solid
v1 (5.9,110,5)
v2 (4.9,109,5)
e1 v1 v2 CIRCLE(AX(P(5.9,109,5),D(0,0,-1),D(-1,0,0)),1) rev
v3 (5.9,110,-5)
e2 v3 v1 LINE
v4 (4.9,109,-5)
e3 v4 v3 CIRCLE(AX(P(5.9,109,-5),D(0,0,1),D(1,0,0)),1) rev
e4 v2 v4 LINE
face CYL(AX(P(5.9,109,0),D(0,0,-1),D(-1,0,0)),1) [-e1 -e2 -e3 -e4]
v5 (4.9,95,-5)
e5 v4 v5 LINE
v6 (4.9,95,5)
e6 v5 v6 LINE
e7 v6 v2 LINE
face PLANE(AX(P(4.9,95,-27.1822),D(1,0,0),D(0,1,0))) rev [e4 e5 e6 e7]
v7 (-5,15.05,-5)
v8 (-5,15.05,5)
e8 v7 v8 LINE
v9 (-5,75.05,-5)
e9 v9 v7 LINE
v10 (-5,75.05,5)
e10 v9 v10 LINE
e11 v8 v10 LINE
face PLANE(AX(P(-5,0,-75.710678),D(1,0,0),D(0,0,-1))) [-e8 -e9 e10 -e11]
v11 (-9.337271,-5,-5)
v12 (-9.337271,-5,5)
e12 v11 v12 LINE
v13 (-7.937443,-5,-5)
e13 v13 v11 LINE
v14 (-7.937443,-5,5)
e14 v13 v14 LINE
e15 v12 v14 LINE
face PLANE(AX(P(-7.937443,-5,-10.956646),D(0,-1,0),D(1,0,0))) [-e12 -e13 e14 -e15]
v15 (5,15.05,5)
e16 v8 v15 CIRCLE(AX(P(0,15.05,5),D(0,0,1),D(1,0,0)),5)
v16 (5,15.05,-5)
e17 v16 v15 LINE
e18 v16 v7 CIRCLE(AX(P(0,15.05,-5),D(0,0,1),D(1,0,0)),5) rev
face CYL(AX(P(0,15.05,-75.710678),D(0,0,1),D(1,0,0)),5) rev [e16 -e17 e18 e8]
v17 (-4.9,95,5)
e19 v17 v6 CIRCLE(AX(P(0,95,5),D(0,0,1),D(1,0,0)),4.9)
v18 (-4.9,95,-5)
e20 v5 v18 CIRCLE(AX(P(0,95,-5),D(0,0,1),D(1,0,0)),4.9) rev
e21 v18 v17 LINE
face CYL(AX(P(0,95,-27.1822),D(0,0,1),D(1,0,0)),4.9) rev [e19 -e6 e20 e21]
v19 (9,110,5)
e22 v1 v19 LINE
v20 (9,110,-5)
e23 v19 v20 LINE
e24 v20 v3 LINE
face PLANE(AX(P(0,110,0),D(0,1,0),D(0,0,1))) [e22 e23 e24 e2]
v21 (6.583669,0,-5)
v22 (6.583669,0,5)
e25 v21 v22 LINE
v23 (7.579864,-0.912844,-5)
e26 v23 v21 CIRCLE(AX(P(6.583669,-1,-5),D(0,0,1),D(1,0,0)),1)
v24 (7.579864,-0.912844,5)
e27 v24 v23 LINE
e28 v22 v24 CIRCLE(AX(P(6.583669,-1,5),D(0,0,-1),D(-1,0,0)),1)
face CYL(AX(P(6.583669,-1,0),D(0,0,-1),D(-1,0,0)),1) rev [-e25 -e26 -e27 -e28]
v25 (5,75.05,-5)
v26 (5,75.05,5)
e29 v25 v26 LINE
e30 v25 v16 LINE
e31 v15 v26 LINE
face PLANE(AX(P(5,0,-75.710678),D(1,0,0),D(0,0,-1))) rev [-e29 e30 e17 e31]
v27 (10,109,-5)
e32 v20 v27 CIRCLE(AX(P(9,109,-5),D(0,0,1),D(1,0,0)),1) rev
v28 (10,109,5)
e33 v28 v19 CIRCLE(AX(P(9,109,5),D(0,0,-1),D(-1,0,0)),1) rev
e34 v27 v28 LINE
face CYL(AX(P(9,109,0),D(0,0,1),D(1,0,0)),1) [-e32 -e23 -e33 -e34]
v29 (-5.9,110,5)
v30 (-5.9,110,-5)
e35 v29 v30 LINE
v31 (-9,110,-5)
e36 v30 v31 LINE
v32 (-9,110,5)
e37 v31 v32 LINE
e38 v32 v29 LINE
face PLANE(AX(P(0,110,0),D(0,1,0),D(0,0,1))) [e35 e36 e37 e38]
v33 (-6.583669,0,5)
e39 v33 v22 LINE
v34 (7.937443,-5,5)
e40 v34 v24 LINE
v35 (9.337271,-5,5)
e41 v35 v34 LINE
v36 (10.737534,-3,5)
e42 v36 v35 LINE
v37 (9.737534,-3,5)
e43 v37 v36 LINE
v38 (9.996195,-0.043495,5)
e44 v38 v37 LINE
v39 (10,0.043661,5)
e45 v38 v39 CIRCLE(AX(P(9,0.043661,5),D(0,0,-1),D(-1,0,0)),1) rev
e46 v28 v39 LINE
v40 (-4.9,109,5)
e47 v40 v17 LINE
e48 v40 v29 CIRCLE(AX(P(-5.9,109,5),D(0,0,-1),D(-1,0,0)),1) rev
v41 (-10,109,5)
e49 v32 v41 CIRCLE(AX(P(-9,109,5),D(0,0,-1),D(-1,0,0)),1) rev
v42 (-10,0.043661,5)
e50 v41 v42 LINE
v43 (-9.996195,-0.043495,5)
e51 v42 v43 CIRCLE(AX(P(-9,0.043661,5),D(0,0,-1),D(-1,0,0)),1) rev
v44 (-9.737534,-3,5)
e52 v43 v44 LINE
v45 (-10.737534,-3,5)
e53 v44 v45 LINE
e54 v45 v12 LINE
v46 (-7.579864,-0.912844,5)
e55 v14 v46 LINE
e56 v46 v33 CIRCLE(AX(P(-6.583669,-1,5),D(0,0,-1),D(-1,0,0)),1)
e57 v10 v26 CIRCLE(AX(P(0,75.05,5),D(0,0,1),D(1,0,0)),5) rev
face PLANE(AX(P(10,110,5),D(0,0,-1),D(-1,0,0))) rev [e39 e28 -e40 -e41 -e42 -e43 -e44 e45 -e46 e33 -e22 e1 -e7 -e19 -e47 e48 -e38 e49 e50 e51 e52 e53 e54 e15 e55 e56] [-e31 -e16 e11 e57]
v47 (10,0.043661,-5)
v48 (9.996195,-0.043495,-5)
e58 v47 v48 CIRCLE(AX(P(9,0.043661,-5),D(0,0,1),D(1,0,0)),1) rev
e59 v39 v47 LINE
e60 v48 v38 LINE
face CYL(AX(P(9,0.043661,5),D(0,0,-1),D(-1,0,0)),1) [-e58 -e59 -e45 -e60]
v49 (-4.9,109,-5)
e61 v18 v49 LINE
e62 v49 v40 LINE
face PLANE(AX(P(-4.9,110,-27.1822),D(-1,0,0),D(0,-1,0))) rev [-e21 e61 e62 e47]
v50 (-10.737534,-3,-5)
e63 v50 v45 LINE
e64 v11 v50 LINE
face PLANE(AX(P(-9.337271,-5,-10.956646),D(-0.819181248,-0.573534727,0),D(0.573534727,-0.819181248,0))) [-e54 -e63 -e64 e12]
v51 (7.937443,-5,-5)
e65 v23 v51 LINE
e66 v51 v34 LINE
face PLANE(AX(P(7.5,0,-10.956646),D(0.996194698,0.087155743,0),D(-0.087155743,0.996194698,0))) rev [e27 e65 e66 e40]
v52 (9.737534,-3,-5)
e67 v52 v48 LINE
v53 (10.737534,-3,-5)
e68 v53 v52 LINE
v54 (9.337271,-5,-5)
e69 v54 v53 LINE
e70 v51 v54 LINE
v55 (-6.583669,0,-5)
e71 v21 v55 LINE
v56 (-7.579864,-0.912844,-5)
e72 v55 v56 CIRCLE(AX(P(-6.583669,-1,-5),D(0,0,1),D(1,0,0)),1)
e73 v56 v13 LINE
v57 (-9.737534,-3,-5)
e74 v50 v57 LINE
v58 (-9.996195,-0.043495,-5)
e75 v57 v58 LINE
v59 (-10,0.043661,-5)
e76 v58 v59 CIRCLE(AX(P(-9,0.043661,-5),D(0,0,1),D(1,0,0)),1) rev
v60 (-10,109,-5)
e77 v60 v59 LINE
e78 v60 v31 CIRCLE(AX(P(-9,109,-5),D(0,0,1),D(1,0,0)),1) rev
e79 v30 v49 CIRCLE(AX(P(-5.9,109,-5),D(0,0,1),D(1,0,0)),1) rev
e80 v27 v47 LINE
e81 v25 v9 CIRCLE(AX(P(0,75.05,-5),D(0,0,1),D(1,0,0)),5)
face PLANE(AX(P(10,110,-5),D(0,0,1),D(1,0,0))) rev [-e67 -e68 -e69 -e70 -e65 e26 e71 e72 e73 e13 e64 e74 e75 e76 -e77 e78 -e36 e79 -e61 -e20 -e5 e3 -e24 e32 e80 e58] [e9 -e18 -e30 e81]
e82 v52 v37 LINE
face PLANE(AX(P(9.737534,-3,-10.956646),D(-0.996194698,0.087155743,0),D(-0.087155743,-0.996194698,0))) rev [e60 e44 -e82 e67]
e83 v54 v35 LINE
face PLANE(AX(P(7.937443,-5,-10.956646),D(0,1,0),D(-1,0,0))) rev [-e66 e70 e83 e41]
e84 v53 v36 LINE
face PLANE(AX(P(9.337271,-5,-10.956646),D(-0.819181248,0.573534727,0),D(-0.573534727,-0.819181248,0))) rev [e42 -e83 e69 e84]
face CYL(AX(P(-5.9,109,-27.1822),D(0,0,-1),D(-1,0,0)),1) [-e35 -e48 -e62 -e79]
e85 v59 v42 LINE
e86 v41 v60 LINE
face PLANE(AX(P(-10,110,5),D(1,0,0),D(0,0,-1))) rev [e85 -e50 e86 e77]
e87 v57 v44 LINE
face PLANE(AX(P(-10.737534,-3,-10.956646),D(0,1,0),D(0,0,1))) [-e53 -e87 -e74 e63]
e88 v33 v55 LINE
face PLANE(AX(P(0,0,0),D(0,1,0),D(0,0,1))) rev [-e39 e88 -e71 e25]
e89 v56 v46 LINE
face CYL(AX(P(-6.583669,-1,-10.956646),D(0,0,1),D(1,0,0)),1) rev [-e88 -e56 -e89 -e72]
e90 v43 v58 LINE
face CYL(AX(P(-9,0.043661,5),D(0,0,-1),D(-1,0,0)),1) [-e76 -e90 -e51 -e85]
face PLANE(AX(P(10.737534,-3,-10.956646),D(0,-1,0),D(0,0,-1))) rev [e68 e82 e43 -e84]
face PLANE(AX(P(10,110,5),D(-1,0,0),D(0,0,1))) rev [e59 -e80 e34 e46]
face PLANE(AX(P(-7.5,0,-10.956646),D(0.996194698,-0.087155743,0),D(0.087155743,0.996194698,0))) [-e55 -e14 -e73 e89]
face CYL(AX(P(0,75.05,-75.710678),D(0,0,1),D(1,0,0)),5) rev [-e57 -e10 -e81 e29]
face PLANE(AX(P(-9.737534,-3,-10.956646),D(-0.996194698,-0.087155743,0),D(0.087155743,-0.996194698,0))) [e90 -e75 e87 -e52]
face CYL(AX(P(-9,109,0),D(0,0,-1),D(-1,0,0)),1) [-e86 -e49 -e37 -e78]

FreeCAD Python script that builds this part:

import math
import FreeCAD as App
import Part
import Sketcher

V = App.Vector
Q = App.Units.Quantity


def edges_at(feature, points):
    """Names of the edges that pass closest to the given points."""
    edges = feature.Shape.Edges
    near = lambda p: min(range(len(edges)), key=lambda i: edges[i].distToShape(Part.Vertex(*p))[0])
    return sorted({f"Edge{near(p) + 1}" for p in points})

doc = App.newDocument("Part")
params = doc.addObject("Spreadsheet::Sheet", "Params")
for row, (alias, value) in enumerate([
    ("sketch1_width", "20 mm"),
    ("sketch1_height", "10 mm"),
    ("pad1_length", "110 mm"),
    ("sketch2_radius", "4.9 mm"),
    ("sketch2_height", "15 mm"),
    ("pocket1_length", "10 mm"),
    ("sketch3_radius", "5 mm"),
    ("sketch3_height", "60 mm"),
    ("pocket2_length", "10 mm"),
    ("sketch4_width", "1 mm"),
    ("sketch4_width2", "2.5 mm"),
    ("pad2_length", "10 mm"),
    ("fillet_radius", "1 mm"),
], start=1):
    params.set(f"A{row}", alias)
    params.set(f"B{row}", "=" + value)
    params.setAlias(f"B{row}", alias)

body = doc.addObject("PartDesign::Body", "Body")

sketch1 = doc.addObject("Sketcher::SketchObject", "Sketch")
body.addObject(sketch1)
sketch1.AttachmentSupport = (doc.XZ_Plane, [""])
sketch1.MapMode = "FlatFace"
sketch1.addGeometry(Part.LineSegment(V(-10, -5, 0), V(-10, 5, 0)), False)
sketch1.addGeometry(Part.LineSegment(V(-10, 5, 0), V(10, 5, 0)), False)
sketch1.addGeometry(Part.LineSegment(V(10, 5, 0), V(10, -5, 0)), False)
sketch1.addGeometry(Part.LineSegment(V(10, -5, 0), V(-10, -5, 0)), False)
sketch1.addConstraint(Sketcher.Constraint("Coincident", 0, 2, 1, 1))
sketch1.addConstraint(Sketcher.Constraint("Coincident", 1, 2, 2, 1))
sketch1.addConstraint(Sketcher.Constraint("Coincident", 2, 2, 3, 1))
sketch1.addConstraint(Sketcher.Constraint("Coincident", 3, 2, 0, 1))
sketch1.addConstraint(Sketcher.Constraint("Vertical", 0))
sketch1.addConstraint(Sketcher.Constraint("Horizontal", 1))
sketch1.addConstraint(Sketcher.Constraint("Vertical", 2))
sketch1.addConstraint(Sketcher.Constraint("Horizontal", 3))
sketch1.addConstraint(Sketcher.Constraint("Symmetric", 0, 2, 2, 2, -1, 1))
sketch1.addConstraint(Sketcher.Constraint("DistanceX", 1, 1, 1, 2, 20.0))
sketch1.addConstraint(Sketcher.Constraint("DistanceY", 0, 1, 0, 2, 10.0))
sketch1.setExpression("Constraints[9]", "Params.sketch1_width")
sketch1.setExpression("Constraints[10]", "Params.sketch1_height")
pad1 = doc.addObject("PartDesign::Pad", "Pad")
body.addObject(pad1)
pad1.Profile = sketch1
pad1.setExpression("Length", "Params.pad1_length")
pad1.Reversed = True

sketch2 = doc.addObject("Sketcher::SketchObject", "Sketch001")
body.addObject(sketch2)
sketch2.AttachmentSupport = (doc.XY_Plane, [""])
sketch2.MapMode = "FlatFace"
sketch2.AttachmentOffset = App.Placement(V(0, 0, 5), App.Rotation())
sketch2.addGeometry(Part.LineSegment(V(-4.9, 110, 0), V(-4.9, 95, 0)), False)
sketch2.addGeometry(Part.ArcOfCircle(Part.Circle(V(0, 95, 0), V(0, 0, 1), 4.9), math.radians(180), math.radians(360)), False)
sketch2.addGeometry(Part.LineSegment(V(4.9, 95, 0), V(4.9, 110, 0)), False)
sketch2.addGeometry(Part.LineSegment(V(4.9, 110, 0), V(-4.9, 110, 0)), False)
sketch2.addConstraint(Sketcher.Constraint("Tangent", 0, 2, 1, 1))
sketch2.addConstraint(Sketcher.Constraint("Tangent", 1, 2, 2, 1))
sketch2.addConstraint(Sketcher.Constraint("Coincident", 2, 2, 3, 1))
sketch2.addConstraint(Sketcher.Constraint("Coincident", 3, 2, 0, 1))
sketch2.addConstraint(Sketcher.Constraint("Vertical", 0))
sketch2.addConstraint(Sketcher.Constraint("Vertical", 2))
sketch2.addConstraint(Sketcher.Constraint("Horizontal", 3))
sketch2.addConstraint(Sketcher.Constraint("PointOnObject", 1, 3, -2))
sketch2.addConstraint(Sketcher.Constraint("Radius", 1, 4.9))
sketch2.addConstraint(Sketcher.Constraint("DistanceY", 0, 2, 0, 1, 15.0))
sketch2.addConstraint(Sketcher.Constraint("DistanceY", -1, 1, 1, 3, 95.0))
sketch2.setExpression("Constraints[8]", "Params.sketch2_radius")
sketch2.setExpression("Constraints[9]", "Params.sketch2_height")
pocket1 = doc.addObject("PartDesign::Pocket", "Pocket")
body.addObject(pocket1)
pocket1.Profile = sketch2
pocket1.setExpression("Length", "Params.pocket1_length")

sketch3 = doc.addObject("Sketcher::SketchObject", "Sketch002")
body.addObject(sketch3)
sketch3.AttachmentSupport = (doc.XY_Plane, [""])
sketch3.MapMode = "FlatFace"
sketch3.AttachmentOffset = App.Placement(V(0, 0, 5), App.Rotation())
sketch3.addGeometry(Part.ArcOfCircle(Part.Circle(V(0, 15, 0), V(0, 0, 1), 5), math.radians(180), math.radians(360)), False)
sketch3.addGeometry(Part.LineSegment(V(5, 15, 0), V(5, 75, 0)), False)
sketch3.addGeometry(Part.ArcOfCircle(Part.Circle(V(0, 75, 0), V(0, 0, 1), 5), math.radians(0), math.radians(180)), False)
sketch3.addGeometry(Part.LineSegment(V(-5, 75, 0), V(-5, 15, 0)), False)
sketch3.addConstraint(Sketcher.Constraint("Tangent", 0, 2, 1, 1))
sketch3.addConstraint(Sketcher.Constraint("Tangent", 1, 2, 2, 1))
sketch3.addConstraint(Sketcher.Constraint("Tangent", 2, 2, 3, 1))
sketch3.addConstraint(Sketcher.Constraint("Tangent", 3, 2, 0, 1))
sketch3.addConstraint(Sketcher.Constraint("Vertical", 1))
sketch3.addConstraint(Sketcher.Constraint("Vertical", 3))
sketch3.addConstraint(Sketcher.Constraint("PointOnObject", 0, 3, -2))
sketch3.addConstraint(Sketcher.Constraint("Radius", 0, 5.0))
sketch3.addConstraint(Sketcher.Constraint("DistanceY", 1, 1, 1, 2, 60.0))
sketch3.addConstraint(Sketcher.Constraint("DistanceY", -1, 1, 0, 3, 15.05))
sketch3.setExpression("Constraints[7]", "Params.sketch3_radius")
sketch3.setExpression("Constraints[8]", "Params.sketch3_height")
pocket2 = doc.addObject("PartDesign::Pocket", "Pocket001")
body.addObject(pocket2)
pocket2.Profile = sketch3
pocket2.setExpression("Length", "Params.pocket2_length")

sketch4 = doc.addObject("Sketcher::SketchObject", "Sketch003")
body.addObject(sketch4)
sketch4.AttachmentSupport = (doc.XY_Plane, [""])
sketch4.MapMode = "FlatFace"
sketch4.AttachmentOffset = App.Placement(V(0, 0, 5), App.Rotation())
sketch4.addGeometry(Part.LineSegment(V(-7.5, 0, 0), V(-10, 0, 0)), False)
sketch4.addGeometry(Part.LineSegment(V(-10, 0, 0), V(-9.7, -3, 0)), False)
sketch4.addGeometry(Part.LineSegment(V(-9.7, -3, 0), V(-10.7, -3, 0)), False)
sketch4.addGeometry(Part.LineSegment(V(-10.7, -3, 0), V(-9.3, -5, 0)), False)
sketch4.addGeometry(Part.LineSegment(V(-9.3, -5, 0), V(-7.9, -5, 0)), False)
sketch4.addGeometry(Part.LineSegment(V(-7.9, -5, 0), V(-7.5, 0, 0)), False)
sketch4.addConstraint(Sketcher.Constraint("Coincident", 0, 2, 1, 1))
sketch4.addConstraint(Sketcher.Constraint("Coincident", 1, 2, 2, 1))
sketch4.addConstraint(Sketcher.Constraint("Coincident", 2, 2, 3, 1))
sketch4.addConstraint(Sketcher.Constraint("Coincident", 3, 2, 4, 1))
sketch4.addConstraint(Sketcher.Constraint("Coincident", 4, 2, 5, 1))
sketch4.addConstraint(Sketcher.Constraint("Coincident", 5, 2, 0, 1))
sketch4.addConstraint(Sketcher.Constraint("Horizontal", 0))
sketch4.addConstraint(Sketcher.Constraint("Horizontal", 2))
sketch4.addConstraint(Sketcher.Constraint("Horizontal", 4))
sketch4.addConstraint(Sketcher.Constraint("PointOnObject", 0, 2, -1))
sketch4.addConstraint(Sketcher.Constraint("DistanceX", 2, 2, 2, 1, 1.0))
sketch4.addConstraint(Sketcher.Constraint("Angle", 1, Q("-85 deg")))
sketch4.addConstraint(Sketcher.Constraint("Angle", 5, Q("85 deg")))
sketch4.addConstraint(Sketcher.Constraint("DistanceX", 0, 2, 0, 1, 2.5))
sketch4.addConstraint(Sketcher.Constraint("DistanceX", 0, 2, -1, 1, 10.0))
sketch4.addConstraint(Sketcher.Constraint("DistanceY", 1, 2, -1, 1, 3.0))
sketch4.addConstraint(Sketcher.Constraint("DistanceY", 3, 2, -1, 1, 5.0))
sketch4.addConstraint(Sketcher.Constraint("DistanceX", 4, 1, 4, 2, 1.399827))
sketch4.setExpression("Constraints[10]", "Params.sketch4_width")
sketch4.setExpression("Constraints[13]", "Params.sketch4_width2")
pad2 = doc.addObject("PartDesign::Pad", "Pad001")
body.addObject(pad2)
pad2.Profile = sketch4
pad2.setExpression("Length", "Params.pad2_length")
pad2.Reversed = True
doc.recompute()

mirrored = doc.addObject("PartDesign::Mirrored", "Mirrored")
body.addObject(mirrored)
mirrored.Originals = [pad2]
mirrored.MirrorPlane = (doc.YZ_Plane, [""])
body.Tip = mirrored
doc.recompute()

fillet = doc.addObject("PartDesign::Fillet", "Fillet")
body.addObject(fillet)
fillet.Base = (mirrored, edges_at(mirrored, [
    (10, 110, 0),
    (-4.9, 110, 0),
    (4.9, 110, 0),
    (-7.5, 0, 0),
    (-10, 110, 0),
    (10, 0, 0),
    (-10, 0, 0),
    (7.5, 0, 0),
]))
fillet.setExpression("Radius", "Params.fillet_radius")

doc.recompute()
